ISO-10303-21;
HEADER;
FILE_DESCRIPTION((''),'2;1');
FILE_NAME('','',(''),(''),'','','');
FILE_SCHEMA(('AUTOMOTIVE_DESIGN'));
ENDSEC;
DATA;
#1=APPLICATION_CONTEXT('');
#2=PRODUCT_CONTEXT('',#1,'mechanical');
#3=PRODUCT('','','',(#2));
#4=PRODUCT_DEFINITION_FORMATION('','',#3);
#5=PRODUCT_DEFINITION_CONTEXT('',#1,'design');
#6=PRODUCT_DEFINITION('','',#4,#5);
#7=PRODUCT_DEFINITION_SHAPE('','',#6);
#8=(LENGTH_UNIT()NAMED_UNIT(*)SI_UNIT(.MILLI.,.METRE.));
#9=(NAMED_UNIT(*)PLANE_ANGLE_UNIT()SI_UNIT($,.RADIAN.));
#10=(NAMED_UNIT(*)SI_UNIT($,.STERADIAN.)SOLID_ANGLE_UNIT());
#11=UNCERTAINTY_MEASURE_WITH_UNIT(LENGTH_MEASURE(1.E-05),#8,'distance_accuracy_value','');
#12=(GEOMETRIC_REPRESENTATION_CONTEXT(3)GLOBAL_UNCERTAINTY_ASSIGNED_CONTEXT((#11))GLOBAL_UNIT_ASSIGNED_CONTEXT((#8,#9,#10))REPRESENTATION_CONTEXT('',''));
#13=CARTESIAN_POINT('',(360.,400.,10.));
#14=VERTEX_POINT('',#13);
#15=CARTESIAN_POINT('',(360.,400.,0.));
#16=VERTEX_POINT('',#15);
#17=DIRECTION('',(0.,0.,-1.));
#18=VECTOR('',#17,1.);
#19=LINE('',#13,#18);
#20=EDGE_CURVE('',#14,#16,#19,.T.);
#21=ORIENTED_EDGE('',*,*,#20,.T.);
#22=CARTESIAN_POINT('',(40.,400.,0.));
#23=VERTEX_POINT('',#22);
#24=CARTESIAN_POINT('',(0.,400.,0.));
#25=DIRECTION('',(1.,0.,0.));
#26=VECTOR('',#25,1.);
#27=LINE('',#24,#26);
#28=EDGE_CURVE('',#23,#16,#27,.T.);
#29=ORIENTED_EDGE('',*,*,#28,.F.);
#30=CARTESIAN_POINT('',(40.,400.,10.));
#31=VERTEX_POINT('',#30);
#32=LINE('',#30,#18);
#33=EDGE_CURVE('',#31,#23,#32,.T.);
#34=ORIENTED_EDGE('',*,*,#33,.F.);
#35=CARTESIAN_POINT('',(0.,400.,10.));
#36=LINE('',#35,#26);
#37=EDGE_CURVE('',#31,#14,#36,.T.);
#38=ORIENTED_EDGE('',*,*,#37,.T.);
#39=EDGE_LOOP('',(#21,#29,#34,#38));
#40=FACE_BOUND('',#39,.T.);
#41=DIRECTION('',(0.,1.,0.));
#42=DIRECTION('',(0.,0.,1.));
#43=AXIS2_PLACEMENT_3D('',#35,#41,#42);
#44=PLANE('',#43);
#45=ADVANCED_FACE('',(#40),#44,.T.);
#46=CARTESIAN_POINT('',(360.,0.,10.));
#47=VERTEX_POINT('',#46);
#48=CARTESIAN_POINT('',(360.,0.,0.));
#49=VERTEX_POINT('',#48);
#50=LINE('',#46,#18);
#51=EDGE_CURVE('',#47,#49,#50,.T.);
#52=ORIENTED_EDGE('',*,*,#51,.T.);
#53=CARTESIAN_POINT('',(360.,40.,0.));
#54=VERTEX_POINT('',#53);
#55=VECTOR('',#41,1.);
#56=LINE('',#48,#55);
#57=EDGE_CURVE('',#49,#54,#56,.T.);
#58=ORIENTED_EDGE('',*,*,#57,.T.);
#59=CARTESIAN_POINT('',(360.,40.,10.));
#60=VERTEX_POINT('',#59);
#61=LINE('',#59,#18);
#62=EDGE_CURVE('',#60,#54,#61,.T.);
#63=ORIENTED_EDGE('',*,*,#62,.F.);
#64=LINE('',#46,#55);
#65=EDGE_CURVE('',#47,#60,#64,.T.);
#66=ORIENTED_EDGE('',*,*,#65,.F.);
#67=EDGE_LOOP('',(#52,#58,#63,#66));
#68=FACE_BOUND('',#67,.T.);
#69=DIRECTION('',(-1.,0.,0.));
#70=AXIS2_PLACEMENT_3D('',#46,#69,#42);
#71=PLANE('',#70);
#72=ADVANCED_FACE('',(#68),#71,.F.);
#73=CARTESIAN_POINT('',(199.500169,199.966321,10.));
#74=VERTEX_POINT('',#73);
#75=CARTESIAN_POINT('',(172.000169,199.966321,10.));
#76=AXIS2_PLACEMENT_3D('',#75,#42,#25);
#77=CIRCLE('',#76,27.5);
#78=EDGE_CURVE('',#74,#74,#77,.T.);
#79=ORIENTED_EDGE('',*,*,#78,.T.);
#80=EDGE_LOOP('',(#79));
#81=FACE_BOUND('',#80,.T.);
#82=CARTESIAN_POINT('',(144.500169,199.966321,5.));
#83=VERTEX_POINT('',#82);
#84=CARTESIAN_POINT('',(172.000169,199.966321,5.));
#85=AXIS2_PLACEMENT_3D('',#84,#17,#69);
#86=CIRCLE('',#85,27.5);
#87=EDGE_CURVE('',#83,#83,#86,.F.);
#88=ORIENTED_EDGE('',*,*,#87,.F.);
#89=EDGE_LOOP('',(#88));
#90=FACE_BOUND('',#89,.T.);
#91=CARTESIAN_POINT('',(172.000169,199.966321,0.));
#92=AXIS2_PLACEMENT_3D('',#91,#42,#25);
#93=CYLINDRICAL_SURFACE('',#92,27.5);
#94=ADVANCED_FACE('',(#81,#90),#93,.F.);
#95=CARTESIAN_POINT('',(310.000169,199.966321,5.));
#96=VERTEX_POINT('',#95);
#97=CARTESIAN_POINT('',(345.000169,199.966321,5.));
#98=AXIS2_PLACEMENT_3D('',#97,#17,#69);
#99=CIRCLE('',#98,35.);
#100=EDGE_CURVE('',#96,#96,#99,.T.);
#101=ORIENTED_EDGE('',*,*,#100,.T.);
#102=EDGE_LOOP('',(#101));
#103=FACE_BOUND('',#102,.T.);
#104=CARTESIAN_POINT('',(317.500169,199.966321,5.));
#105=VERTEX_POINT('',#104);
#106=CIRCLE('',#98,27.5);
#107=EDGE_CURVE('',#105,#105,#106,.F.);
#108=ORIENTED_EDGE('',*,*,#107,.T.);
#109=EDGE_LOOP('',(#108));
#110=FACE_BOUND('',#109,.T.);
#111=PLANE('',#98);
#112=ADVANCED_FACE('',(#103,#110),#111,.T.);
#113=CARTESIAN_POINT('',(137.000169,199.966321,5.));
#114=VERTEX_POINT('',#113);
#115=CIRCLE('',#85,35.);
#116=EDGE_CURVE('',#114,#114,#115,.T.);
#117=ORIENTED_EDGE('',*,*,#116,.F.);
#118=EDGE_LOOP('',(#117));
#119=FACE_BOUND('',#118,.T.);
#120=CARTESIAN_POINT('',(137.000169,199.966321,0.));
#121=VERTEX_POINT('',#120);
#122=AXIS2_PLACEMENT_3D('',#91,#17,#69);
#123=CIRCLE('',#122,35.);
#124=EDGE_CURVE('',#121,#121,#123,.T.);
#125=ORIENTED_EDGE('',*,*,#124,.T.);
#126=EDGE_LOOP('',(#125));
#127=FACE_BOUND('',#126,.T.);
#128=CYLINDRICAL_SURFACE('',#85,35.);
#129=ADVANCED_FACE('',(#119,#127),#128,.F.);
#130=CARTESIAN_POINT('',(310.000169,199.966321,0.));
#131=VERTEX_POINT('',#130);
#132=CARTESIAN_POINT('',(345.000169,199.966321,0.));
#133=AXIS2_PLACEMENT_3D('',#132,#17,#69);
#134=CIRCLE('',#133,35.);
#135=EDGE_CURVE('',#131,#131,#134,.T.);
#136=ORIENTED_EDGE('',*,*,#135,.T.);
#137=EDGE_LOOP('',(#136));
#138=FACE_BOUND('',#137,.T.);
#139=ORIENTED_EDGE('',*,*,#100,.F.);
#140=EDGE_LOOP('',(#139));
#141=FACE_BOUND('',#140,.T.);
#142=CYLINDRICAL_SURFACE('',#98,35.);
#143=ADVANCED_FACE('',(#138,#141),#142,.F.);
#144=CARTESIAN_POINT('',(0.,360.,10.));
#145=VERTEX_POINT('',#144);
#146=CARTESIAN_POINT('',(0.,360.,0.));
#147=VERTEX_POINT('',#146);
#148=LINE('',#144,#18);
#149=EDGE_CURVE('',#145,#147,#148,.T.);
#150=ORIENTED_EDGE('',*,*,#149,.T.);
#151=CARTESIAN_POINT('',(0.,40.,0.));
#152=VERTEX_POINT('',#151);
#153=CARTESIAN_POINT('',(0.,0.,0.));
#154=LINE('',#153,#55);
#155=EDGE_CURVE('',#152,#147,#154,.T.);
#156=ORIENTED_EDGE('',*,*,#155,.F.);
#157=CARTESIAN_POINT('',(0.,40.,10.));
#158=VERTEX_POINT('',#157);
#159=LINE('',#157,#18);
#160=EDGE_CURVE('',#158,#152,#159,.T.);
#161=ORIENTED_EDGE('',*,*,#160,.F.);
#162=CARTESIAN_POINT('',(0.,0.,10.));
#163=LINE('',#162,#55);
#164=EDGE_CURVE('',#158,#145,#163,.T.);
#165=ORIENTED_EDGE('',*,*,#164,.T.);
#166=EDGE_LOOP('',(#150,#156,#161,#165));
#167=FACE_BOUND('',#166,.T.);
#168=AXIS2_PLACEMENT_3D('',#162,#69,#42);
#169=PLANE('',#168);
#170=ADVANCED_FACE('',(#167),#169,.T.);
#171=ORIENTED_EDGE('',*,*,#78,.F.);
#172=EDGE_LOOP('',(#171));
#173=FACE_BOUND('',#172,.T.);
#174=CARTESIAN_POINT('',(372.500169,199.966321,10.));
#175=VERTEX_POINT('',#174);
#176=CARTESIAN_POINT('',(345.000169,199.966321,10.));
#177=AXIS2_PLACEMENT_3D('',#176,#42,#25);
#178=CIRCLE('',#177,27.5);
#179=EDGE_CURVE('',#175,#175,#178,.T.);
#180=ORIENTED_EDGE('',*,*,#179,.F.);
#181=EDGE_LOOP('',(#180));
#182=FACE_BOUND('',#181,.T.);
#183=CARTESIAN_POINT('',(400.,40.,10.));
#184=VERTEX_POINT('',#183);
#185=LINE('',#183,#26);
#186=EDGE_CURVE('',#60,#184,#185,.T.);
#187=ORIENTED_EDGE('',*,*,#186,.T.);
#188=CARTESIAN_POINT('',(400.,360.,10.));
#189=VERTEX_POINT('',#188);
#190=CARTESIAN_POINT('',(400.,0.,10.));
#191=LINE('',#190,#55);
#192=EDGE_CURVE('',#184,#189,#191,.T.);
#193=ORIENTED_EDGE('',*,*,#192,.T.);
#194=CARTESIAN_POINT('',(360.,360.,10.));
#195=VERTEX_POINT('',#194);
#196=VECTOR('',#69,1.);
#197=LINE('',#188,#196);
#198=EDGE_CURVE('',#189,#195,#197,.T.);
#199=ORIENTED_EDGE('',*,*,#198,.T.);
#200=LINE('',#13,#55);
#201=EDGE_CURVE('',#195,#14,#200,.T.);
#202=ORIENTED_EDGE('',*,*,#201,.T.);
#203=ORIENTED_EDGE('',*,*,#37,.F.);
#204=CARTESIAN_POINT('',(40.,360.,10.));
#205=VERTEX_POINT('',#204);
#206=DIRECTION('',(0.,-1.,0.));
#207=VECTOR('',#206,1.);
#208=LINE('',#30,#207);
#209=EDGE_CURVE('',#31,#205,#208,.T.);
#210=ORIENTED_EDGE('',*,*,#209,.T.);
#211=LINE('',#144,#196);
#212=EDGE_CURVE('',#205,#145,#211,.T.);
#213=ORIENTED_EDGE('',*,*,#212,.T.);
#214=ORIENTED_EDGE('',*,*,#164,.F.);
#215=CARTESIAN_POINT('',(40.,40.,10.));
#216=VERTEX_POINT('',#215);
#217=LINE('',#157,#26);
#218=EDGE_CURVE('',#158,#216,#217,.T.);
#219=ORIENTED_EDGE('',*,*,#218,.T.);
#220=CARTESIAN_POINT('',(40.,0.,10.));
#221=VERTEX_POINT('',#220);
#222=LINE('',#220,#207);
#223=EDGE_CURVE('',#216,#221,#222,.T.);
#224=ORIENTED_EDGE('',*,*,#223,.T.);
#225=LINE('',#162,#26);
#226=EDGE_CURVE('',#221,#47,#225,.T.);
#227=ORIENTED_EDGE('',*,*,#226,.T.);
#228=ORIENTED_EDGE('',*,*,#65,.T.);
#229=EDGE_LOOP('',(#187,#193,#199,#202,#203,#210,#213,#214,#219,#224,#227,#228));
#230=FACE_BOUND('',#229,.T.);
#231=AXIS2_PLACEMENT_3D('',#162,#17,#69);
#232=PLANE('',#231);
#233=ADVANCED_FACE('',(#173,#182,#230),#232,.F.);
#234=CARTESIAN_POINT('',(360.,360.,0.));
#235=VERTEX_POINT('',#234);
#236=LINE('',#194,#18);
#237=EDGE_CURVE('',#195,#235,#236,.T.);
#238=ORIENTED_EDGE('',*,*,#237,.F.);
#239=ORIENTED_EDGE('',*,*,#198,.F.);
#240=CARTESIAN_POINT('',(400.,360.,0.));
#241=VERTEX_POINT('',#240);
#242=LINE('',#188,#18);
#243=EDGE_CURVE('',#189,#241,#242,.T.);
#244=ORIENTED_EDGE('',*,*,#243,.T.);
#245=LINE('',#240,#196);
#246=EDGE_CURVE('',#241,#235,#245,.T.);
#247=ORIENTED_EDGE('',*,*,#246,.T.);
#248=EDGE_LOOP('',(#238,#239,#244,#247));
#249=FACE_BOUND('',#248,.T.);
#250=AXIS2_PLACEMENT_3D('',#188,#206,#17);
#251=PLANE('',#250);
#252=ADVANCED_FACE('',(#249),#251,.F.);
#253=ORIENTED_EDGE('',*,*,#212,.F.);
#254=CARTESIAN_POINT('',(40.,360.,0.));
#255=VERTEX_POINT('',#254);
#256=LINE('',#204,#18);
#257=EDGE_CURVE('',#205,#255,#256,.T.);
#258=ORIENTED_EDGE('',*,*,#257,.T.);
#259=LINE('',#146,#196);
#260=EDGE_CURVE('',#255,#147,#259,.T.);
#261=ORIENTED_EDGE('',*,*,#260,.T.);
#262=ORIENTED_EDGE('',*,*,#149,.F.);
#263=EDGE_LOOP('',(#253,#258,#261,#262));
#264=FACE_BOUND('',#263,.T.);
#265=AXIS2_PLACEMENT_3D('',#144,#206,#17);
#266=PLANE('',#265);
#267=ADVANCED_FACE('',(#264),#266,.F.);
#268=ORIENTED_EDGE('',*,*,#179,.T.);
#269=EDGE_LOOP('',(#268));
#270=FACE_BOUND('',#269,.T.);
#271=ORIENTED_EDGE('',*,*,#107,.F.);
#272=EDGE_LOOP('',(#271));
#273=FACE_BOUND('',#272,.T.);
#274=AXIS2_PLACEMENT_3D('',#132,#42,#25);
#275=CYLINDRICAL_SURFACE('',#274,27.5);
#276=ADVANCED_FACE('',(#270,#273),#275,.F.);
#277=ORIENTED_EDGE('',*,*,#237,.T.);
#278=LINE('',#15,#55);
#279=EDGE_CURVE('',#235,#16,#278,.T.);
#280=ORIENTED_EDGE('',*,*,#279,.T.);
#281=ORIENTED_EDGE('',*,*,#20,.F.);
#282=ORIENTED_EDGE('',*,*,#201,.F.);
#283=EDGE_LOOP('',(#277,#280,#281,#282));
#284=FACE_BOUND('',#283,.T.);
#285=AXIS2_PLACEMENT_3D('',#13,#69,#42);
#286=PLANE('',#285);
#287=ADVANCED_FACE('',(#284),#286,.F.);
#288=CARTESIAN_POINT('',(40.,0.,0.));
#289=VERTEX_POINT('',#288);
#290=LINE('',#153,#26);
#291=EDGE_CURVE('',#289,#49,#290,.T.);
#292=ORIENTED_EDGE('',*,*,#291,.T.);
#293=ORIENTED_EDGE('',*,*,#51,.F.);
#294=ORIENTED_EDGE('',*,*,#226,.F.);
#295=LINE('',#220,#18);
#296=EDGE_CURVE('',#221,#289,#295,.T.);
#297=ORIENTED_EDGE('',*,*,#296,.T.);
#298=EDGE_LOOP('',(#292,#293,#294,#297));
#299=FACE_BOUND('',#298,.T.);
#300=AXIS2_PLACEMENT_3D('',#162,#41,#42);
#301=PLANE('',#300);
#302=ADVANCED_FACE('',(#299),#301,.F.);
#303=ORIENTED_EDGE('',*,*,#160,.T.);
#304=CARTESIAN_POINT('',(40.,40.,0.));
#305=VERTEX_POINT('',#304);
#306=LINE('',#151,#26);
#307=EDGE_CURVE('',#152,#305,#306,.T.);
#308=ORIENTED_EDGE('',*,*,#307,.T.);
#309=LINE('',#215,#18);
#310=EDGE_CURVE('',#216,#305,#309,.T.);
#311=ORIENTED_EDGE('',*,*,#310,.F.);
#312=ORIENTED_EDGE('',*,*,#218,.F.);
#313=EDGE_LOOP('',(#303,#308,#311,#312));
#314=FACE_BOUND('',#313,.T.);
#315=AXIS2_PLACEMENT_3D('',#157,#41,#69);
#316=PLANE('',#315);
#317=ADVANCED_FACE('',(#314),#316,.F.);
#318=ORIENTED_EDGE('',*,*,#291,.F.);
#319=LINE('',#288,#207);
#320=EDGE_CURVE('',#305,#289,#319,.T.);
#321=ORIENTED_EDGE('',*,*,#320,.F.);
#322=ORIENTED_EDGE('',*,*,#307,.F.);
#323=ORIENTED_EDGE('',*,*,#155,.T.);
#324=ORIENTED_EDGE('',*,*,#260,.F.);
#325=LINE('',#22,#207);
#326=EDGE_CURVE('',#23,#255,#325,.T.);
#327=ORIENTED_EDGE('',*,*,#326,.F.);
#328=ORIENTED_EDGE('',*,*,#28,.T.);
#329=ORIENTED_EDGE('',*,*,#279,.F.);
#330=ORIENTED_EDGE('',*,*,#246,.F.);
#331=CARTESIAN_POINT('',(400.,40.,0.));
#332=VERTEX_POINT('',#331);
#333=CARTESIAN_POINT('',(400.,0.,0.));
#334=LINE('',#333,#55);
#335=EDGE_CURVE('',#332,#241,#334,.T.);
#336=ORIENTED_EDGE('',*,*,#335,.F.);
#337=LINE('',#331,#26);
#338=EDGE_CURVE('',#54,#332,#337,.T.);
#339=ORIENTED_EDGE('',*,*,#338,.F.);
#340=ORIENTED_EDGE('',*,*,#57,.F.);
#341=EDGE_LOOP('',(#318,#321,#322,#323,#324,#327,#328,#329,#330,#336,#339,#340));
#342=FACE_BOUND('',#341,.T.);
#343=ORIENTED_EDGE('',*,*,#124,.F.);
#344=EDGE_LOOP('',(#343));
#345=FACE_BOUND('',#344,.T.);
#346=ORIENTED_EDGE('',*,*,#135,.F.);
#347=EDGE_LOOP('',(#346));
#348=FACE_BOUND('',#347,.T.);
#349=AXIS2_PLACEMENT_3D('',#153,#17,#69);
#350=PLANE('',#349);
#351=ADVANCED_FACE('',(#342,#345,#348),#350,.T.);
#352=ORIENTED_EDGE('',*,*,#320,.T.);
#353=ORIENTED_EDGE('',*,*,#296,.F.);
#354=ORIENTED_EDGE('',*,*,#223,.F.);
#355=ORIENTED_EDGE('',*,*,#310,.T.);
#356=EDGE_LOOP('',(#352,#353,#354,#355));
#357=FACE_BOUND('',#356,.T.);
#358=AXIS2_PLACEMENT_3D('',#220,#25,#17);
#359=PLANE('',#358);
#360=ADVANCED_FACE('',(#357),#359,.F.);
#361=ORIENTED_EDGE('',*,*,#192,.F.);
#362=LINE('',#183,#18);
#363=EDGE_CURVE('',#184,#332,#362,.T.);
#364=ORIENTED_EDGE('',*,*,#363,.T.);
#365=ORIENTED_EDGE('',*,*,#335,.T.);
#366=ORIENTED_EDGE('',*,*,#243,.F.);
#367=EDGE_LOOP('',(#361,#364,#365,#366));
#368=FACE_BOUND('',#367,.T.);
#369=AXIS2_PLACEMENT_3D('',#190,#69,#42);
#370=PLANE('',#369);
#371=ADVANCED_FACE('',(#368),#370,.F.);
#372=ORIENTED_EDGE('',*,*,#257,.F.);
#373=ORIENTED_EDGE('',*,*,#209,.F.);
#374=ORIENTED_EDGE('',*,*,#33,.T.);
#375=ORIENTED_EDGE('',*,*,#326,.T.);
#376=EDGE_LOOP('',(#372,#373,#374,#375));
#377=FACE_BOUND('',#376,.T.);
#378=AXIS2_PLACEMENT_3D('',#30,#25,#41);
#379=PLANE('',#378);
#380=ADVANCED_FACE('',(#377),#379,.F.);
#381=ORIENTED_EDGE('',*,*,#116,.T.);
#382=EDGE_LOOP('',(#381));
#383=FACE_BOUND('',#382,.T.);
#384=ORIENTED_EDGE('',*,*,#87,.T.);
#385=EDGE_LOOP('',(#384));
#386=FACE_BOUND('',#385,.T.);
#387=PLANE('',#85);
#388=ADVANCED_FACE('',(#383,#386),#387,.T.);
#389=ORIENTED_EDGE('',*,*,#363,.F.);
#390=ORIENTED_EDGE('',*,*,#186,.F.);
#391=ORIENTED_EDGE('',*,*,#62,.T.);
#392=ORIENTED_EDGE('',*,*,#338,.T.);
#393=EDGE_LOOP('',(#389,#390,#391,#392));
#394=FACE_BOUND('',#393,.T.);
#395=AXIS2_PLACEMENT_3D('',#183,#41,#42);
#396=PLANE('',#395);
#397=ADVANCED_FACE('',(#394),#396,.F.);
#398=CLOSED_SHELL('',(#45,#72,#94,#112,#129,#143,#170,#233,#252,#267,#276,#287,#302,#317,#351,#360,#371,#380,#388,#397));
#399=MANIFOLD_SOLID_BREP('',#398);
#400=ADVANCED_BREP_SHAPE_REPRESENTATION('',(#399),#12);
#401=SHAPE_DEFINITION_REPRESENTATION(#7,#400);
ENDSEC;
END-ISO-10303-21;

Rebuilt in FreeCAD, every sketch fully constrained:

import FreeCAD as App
import Part
import Sketcher

V = App.Vector

doc = App.newDocument("Part")
params = doc.addObject("Spreadsheet::Sheet", "Params")
for row, (alias, value) in enumerate([
    ("sketch1_width", "400 mm"),
    ("pad1_length", "10 mm"),
    ("sketch2_diameter", "55 mm"),
    ("sketch3_diameter", "70 mm"),
    ("pocket2_length", "5 mm"),
    ("sketch4_width", "40 mm"),
], start=1):
    params.set(f"A{row}", alias)
    params.set(f"B{row}", "=" + value)
    params.setAlias(f"B{row}", alias)

body = doc.addObject("PartDesign::Body", "Body")

# Sketch on XY plane
sketch1 = body.newObject("Sketcher::SketchObject", "Sketch")
sketch1.AttachmentSupport = (doc.getObject("XY_Plane"), [""])
sketch1.MapMode = "FlatFace"
sketch1.addGeometry([
    Part.LineSegment(V(0, 400, 0), V(0, 0, 0)),
    Part.LineSegment(V(0, 0, 0), V(400, 0, 0)),
    Part.LineSegment(V(400, 0, 0), V(400, 400, 0)),
    Part.LineSegment(V(400, 400, 0), V(0, 400, 0)),
], False)
sketch1.addConstraint([
    Sketcher.Constraint("Coincident", 0, 2, 1, 1),
    Sketcher.Constraint("Coincident", 1, 2, 2, 1),
    Sketcher.Constraint("Coincident", 2, 2, 3, 1),
    Sketcher.Constraint("Coincident", 3, 2, 0, 1),
    Sketcher.Constraint("Vertical", 0),
    Sketcher.Constraint("Horizontal", 1),
    Sketcher.Constraint("Vertical", 2),
    Sketcher.Constraint("Horizontal", 3),
    Sketcher.Constraint("Coincident", 0, 2, -1, 1),
    Sketcher.Constraint("Equal", 3, 0),
    Sketcher.Constraint("DistanceX", 1, 1, 1, 2, 400.0),
])
sketch1.setExpression("Constraints[10]", "Params.sketch1_width")
pad1 = body.newObject("PartDesign::Pad", "Pad")
pad1.Profile = sketch1
pad1.setExpression("Length", "Params.pad1_length")

# Sketch on XY plane
sketch2 = body.newObject("Sketcher::SketchObject", "Sketch001")
sketch2.AttachmentSupport = (doc.getObject("XY_Plane"), [""])
sketch2.MapMode = "FlatFace"
sketch2.AttachmentOffset = App.Placement(V(0, 0, 10), App.Rotation())
sketch2.addGeometry([
    Part.Circle(V(345, 200, 0), V(0, 0, 1), 28),
    Part.Circle(V(172, 200, 0), V(0, 0, 1), 28),
], False)
sketch2.addConstraint([
    Sketcher.Constraint("Equal", 0, 1),
    Sketcher.Constraint("Horizontal", 0, 3, 1, 3),
    Sketcher.Constraint("Diameter", 0, 55.0),
    Sketcher.Constraint("DistanceX", 1, 3, 0, 3, 173.0),
    Sketcher.Constraint("DistanceX", -1, 1, 0, 3, 345.000169),
    Sketcher.Constraint("DistanceY", -1, 1, 0, 3, 199.966321),
])
sketch2.setExpression("Constraints[2]", "Params.sketch2_diameter")
pocket1 = body.newObject("PartDesign::Pocket", "Pocket")
pocket1.Profile = sketch2
pocket1.Type = "ThroughAll"

# Sketch on XY plane
sketch3 = body.newObject("Sketcher::SketchObject", "Sketch002")
sketch3.AttachmentSupport = (doc.getObject("XY_Plane"), [""])
sketch3.MapMode = "FlatFace"
sketch3.addGeometry([
    Part.Circle(V(345, 200, 0), V(0, 0, 1), 35),
    Part.Circle(V(172, 200, 0), V(0, 0, 1), 35),
], False)
sketch3.addConstraint([
    Sketcher.Constraint("Equal", 0, 1),
    Sketcher.Constraint("Horizontal", 0, 3, 1, 3),
    Sketcher.Constraint("Diameter", 0, 70.0),
    Sketcher.Constraint("DistanceX", 1, 3, 0, 3, 173.0),
    Sketcher.Constraint("DistanceX", -1, 1, 0, 3, 345.000169),
    Sketcher.Constraint("DistanceY", -1, 1, 0, 3, 199.966321),
])
sketch3.setExpression("Constraints[2]", "Params.sketch3_diameter")
pocket2 = body.newObject("PartDesign::Pocket", "Pocket001")
pocket2.Profile = sketch3
pocket2.setExpression("Length", "Params.pocket2_length")
pocket2.Reversed = True

# Sketch on XY plane
sketch4 = body.newObject("Sketcher::SketchObject", "Sketch003")
sketch4.AttachmentSupport = (doc.getObject("XY_Plane"), [""])
sketch4.MapMode = "FlatFace"
sketch4.addGeometry([
    Part.LineSegment(V(400, 400, 0), V(400, 360, 0)),  # 0
    Part.LineSegment(V(400, 360, 0), V(360, 360, 0)),  # 1
    Part.LineSegment(V(360, 360, 0), V(360, 400, 0)),  # 2
    Part.LineSegment(V(360, 400, 0), V(400, 400, 0)),  # 3
    Part.LineSegment(V(400, 40, 0), V(400, 0, 0)),  # 4
    Part.LineSegment(V(400, 0, 0), V(360, 0, 0)),  # 5
    Part.LineSegment(V(360, 0, 0), V(360, 40, 0)),  # 6
    Part.LineSegment(V(360, 40, 0), V(400, 40, 0)),  # 7
    Part.LineSegment(V(40, 400, 0), V(40, 360, 0)),  # 8
    Part.LineSegment(V(40, 360, 0), V(0, 360, 0)),  # 9
    Part.LineSegment(V(0, 360, 0), V(0, 400, 0)),  # 10
    Part.LineSegment(V(0, 400, 0), V(40, 400, 0)),  # 11
    Part.LineSegment(V(40, 40, 0), V(40, 0, 0)),  # 12
    Part.LineSegment(V(40, 0, 0), V(0, 0, 0)),  # 13
    Part.LineSegment(V(0, 0, 0), V(0, 40, 0)),  # 14
    Part.LineSegment(V(0, 40, 0), V(40, 40, 0)),  # 15
], False)
sketch4.addConstraint([
    Sketcher.Constraint("Coincident", 0, 2, 1, 1),
    Sketcher.Constraint("Coincident", 1, 2, 2, 1),
    Sketcher.Constraint("Coincident", 2, 2, 3, 1),
    Sketcher.Constraint("Coincident", 3, 2, 0, 1),
    Sketcher.Constraint("Coincident", 4, 2, 5, 1),
    Sketcher.Constraint("Coincident", 5, 2, 6, 1),
    Sketcher.Constraint("Coincident", 6, 2, 7, 1),
    Sketcher.Constraint("Coincident", 7, 2, 4, 1),
    Sketcher.Constraint("Coincident", 8, 2, 9, 1),
    Sketcher.Constraint("Coincident", 9, 2, 10, 1),
    Sketcher.Constraint("Coincident", 10, 2, 11, 1),
    Sketcher.Constraint("Coincident", 11, 2, 8, 1),
    Sketcher.Constraint("Coincident", 12, 2, 13, 1),
    Sketcher.Constraint("Coincident", 13, 2, 14, 1),
    Sketcher.Constraint("Coincident", 14, 2, 15, 1),
    Sketcher.Constraint("Coincident", 15, 2, 12, 1),
    Sketcher.Constraint("Vertical", 0),
    Sketcher.Constraint("Horizontal", 1),
    Sketcher.Constraint("Vertical", 2),
    Sketcher.Constraint("Horizontal", 3),
    Sketcher.Constraint("Vertical", 4),
    Sketcher.Constraint("Horizontal", 5),
    Sketcher.Constraint("Vertical", 6),
    Sketcher.Constraint("Horizontal", 7),
    Sketcher.Constraint("Vertical", 8),
    Sketcher.Constraint("Horizontal", 9),
    Sketcher.Constraint("Vertical", 10),
    Sketcher.Constraint("Horizontal", 11),
    Sketcher.Constraint("Vertical", 12),
    Sketcher.Constraint("Horizontal", 13),
    Sketcher.Constraint("Vertical", 14),
    Sketcher.Constraint("Horizontal", 15),
    Sketcher.Constraint("Coincident", 13, 2, -1, 1),
    Sketcher.Constraint("PointOnObject", 4, 2, -1),
    Sketcher.Constraint("PointOnObject", 9, 2, -2),
    Sketcher.Constraint("Horizontal", 1, 2, 8, 2),
    Sketcher.Constraint("Horizontal", 3, 2, 10, 2),
    Sketcher.Constraint("Horizontal", 7, 2, 14, 2),
    Sketcher.Constraint("Vertical", 3, 2, 4, 2),
    Sketcher.Constraint("Vertical", 2, 2, 5, 2),
    Sketcher.Constraint("Vertical", 11, 2, 12, 2),
    Sketcher.Constraint("Equal", 7, 9),
    Sketcher.Constraint("Equal", 15, 0),
    Sketcher.Constraint("Equal", 2, 4),
    Sketcher.Constraint("DistanceX", 1, 2, 1, 1, 40.0),
    Sketcher.Constraint("DistanceX", -1, 1, 0, 2, 400.0),
    Sketcher.Constraint("DistanceY", -1, 1, 0, 2, 360.0),
])
sketch4.setExpression("Constraints[44]", "Params.sketch4_width")
pocket3 = body.newObject("PartDesign::Pocket", "Pocket002")
pocket3.Profile = sketch4
pocket3.Type = "ThroughAll"
pocket3.Reversed = True

doc.recompute()
